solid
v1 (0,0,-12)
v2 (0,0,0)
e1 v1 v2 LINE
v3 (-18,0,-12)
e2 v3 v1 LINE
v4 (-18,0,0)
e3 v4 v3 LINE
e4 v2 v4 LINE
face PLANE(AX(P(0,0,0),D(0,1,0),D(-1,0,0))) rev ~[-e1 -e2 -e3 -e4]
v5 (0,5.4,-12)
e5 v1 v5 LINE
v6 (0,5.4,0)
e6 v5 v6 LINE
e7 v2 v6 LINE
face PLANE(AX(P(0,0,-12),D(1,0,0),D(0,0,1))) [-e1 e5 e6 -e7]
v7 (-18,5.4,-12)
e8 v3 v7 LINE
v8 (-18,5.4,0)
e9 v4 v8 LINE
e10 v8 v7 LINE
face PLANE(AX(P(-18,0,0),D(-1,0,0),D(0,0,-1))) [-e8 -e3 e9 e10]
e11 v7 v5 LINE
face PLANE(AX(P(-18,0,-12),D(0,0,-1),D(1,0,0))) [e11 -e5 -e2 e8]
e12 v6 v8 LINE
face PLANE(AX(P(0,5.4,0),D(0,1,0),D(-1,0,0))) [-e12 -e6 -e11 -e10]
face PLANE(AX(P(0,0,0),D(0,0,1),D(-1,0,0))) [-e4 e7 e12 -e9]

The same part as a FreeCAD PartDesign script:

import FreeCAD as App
import Part
import Sketcher


def add_polygon(sketch, points):
    """Adds a closed chain of lines whose ends are joined by coincident constraints."""
    first, n = sketch.GeometryCount, len(points)
    for a, b in zip(points, points[1:] + points[:1]):
        sketch.addGeometry(Part.LineSegment(App.Vector(*a, 0), App.Vector(*b, 0)), False)
    for i in range(n):
        sketch.addConstraint(Sketcher.Constraint("Coincident", first + i, 2, first + (i + 1) % n, 1))

doc = App.newDocument("Part")
body = doc.addObject("PartDesign::Body", "Body")

sketch1 = body.newObject("Sketcher::SketchObject", "Sketch")
sketch1.AttachmentSupport = (doc.getObject("XZ_Plane"), [""])
sketch1.MapMode = "FlatFace"
add_polygon(sketch1, [(-18, 0), (0, 0), (0, -12), (-18, -12)])
sketch1.addConstraint(Sketcher.Constraint("Horizontal", 0))
sketch1.addConstraint(Sketcher.Constraint("Vertical", 1))
sketch1.addConstraint(Sketcher.Constraint("Horizontal", 2))
sketch1.addConstraint(Sketcher.Constraint("Vertical", 3))
sketch1.addConstraint(Sketcher.Constraint("Coincident", 0, 2, -1, 1))
sketch1.addConstraint(Sketcher.Constraint("DistanceX", 0, 1, 0, 2, 18.0))
sketch1.addConstraint(Sketcher.Constraint("DistanceY", 1, 2, 1, 1, 12.0))
pad1 = body.newObject("PartDesign::Pad", "Pad")
pad1.Profile = sketch1
pad1.Length = 5.4
pad1.Reversed = True

doc.recompute()
